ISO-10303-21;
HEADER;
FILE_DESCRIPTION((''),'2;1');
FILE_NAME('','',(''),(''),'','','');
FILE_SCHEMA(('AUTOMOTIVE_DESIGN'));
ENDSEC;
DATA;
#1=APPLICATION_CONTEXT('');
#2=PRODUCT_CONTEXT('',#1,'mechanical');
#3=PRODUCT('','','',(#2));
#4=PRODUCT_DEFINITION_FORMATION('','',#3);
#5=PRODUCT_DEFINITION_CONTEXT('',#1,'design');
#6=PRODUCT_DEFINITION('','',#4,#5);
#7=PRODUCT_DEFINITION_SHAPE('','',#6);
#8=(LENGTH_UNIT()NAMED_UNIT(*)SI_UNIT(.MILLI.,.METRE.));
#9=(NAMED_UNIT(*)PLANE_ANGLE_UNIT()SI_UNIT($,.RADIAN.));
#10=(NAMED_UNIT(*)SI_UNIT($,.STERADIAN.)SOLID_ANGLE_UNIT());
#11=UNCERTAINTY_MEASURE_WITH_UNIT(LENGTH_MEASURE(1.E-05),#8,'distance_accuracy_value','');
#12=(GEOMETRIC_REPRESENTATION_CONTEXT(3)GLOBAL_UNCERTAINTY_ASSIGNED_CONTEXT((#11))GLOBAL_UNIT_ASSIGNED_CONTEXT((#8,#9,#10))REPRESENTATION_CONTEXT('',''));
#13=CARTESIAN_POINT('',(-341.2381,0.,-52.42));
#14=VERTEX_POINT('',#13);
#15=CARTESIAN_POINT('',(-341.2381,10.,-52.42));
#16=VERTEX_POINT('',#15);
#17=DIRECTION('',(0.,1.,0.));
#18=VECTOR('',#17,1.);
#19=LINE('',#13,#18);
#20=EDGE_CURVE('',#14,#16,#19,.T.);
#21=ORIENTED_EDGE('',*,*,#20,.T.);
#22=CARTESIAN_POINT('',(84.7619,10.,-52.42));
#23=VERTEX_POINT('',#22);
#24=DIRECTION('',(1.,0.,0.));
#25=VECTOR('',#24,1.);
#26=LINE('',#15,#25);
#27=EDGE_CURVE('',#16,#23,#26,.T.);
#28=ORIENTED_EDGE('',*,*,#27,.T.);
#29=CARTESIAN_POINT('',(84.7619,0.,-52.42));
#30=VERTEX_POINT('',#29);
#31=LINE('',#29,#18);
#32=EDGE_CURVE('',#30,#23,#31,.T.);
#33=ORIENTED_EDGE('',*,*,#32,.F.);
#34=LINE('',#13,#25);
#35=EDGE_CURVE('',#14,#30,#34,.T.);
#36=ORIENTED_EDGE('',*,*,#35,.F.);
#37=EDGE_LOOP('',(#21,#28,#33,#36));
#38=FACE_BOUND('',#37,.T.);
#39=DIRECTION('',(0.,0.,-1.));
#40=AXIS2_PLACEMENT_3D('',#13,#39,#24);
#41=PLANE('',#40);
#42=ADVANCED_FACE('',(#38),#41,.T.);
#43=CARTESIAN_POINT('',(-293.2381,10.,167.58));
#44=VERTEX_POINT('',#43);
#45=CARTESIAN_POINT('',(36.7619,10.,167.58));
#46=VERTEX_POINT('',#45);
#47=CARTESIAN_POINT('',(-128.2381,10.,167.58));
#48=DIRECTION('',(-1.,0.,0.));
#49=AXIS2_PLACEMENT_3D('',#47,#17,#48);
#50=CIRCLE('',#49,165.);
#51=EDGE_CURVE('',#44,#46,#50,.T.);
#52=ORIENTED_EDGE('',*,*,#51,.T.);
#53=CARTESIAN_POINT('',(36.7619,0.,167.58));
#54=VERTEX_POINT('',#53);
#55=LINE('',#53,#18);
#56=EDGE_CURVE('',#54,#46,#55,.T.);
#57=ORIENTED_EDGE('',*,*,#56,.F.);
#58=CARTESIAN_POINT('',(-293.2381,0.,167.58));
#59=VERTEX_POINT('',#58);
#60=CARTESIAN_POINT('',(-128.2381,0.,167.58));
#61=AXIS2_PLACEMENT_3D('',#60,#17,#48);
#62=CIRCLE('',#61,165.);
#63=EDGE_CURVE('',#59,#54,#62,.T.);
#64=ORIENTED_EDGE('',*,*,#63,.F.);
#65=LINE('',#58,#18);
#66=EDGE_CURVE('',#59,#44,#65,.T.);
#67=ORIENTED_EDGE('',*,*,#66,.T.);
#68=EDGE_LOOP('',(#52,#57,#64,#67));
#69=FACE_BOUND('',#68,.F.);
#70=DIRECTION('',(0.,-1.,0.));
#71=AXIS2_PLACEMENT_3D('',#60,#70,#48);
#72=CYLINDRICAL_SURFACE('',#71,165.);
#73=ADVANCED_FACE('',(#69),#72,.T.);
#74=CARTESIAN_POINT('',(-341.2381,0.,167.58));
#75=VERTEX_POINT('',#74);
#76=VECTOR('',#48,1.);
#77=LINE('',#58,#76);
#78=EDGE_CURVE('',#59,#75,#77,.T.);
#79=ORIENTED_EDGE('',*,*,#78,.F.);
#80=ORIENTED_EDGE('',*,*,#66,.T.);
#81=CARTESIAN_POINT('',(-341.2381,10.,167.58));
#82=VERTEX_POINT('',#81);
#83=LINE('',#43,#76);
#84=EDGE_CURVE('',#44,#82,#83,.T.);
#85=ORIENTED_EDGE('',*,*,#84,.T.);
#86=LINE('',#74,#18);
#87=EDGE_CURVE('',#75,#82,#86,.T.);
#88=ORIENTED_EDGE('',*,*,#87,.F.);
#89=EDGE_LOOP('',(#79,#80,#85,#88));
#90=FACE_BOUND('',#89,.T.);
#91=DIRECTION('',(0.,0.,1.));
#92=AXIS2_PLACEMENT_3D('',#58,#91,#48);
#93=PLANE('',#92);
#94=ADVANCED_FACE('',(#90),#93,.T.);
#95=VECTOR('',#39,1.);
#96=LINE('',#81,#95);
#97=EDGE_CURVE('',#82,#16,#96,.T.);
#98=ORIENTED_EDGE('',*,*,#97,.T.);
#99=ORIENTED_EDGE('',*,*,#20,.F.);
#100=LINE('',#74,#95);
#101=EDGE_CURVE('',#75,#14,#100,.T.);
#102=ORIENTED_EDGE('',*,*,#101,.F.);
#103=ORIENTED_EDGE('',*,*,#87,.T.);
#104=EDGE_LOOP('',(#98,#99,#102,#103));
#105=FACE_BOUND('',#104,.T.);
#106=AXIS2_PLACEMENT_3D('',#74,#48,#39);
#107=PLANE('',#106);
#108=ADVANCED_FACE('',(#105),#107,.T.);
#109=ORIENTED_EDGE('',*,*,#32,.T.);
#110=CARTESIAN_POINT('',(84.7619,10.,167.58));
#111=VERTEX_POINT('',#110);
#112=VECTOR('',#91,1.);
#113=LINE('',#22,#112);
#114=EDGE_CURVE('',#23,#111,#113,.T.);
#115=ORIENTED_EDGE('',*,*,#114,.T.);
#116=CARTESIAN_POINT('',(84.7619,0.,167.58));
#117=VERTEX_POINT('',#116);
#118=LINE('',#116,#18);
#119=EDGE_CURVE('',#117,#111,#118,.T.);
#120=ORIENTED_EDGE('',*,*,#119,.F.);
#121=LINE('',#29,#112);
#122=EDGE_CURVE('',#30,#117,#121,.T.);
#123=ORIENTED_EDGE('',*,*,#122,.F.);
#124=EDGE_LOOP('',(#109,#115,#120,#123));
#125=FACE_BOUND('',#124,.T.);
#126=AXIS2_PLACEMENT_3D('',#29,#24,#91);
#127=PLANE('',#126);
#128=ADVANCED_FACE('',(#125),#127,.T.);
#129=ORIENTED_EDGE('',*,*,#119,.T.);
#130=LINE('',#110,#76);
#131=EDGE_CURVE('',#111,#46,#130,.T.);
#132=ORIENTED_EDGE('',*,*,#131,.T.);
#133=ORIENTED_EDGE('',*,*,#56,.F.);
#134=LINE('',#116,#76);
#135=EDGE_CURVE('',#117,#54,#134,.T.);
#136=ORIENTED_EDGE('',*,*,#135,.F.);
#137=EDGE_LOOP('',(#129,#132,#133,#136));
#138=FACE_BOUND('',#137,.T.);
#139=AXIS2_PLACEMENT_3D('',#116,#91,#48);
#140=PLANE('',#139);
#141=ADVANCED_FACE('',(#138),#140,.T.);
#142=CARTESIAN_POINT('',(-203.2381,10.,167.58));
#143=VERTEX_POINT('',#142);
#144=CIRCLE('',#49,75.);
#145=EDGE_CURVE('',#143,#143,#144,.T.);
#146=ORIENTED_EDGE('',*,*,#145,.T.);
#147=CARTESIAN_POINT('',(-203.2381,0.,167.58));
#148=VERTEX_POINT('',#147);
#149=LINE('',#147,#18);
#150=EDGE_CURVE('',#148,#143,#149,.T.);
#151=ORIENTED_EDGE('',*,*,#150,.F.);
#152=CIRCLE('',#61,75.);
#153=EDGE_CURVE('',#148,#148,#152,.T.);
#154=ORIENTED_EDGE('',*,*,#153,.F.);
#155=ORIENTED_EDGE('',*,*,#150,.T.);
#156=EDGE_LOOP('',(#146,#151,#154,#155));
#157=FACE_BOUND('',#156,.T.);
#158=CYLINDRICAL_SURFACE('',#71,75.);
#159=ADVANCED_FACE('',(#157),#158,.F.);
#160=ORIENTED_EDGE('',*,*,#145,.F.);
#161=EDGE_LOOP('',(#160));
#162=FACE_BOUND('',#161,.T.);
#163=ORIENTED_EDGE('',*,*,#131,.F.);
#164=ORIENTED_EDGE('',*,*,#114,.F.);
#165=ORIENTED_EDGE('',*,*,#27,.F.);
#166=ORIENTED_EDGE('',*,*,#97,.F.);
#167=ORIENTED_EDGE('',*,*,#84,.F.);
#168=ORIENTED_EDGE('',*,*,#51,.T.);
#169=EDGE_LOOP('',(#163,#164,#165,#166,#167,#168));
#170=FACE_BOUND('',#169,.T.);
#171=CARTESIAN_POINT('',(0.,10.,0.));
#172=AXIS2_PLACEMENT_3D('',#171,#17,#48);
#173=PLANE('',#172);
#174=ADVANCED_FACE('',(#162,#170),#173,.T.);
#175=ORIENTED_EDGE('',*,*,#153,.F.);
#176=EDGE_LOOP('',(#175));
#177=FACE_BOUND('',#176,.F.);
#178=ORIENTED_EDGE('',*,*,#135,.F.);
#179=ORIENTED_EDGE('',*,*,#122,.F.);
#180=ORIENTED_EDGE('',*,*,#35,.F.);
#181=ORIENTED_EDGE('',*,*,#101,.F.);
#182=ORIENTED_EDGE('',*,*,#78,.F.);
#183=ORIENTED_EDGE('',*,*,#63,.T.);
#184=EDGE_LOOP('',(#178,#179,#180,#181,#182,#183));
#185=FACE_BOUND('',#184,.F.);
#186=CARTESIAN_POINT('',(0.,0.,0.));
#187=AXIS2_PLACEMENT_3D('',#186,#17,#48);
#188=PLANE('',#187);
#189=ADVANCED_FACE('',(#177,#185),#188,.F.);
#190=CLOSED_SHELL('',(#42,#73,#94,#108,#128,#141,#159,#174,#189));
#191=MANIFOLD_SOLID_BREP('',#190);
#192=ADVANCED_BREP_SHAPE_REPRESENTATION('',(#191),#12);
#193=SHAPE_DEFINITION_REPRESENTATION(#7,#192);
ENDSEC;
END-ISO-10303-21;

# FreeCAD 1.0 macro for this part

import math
import FreeCAD as App
import Part
import Sketcher
from FreeCAD import Vector
Q = App.Units.Quantity

doc = App.newDocument("Part")
body = doc.addObject("PartDesign::Body", "Body")

# Sketch on XZ plane
sketch1 = body.newObject("Sketcher::SketchObject", "Sketch")
sketch1.AttachmentSupport = (doc.getObject("XZ_Plane"), [""])
sketch1.MapMode = "FlatFace"
sketch1.addGeometry([
    Part.LineSegment(Vector(-341, -52, 0), Vector(-341, 168, 0)),  # 0
    Part.LineSegment(Vector(-341, 168, 0), Vector(-293, 168, 0)),  # 1
    Part.ArcOfCircle(Part.Circle(Vector(-128, 168, 0), Vector(0, 0, 1), 165), math.radians(0), math.radians(180)),  # 2
    Part.LineSegment(Vector(37, 168, 0), Vector(85, 168, 0)),  # 3
    Part.LineSegment(Vector(85, 168, 0), Vector(85, -52, 0)),  # 4
    Part.LineSegment(Vector(85, -52, 0), Vector(-341, -52, 0)),  # 5
    Part.Circle(Vector(-128, 168, 0), Vector(0, 0, 1), 75),  # 6
], False)
sketch1.addConstraint([
    Sketcher.Constraint("Coincident", 0, 2, 1, 1),
    Sketcher.Constraint("Coincident", 1, 2, 2, 2),
    Sketcher.Constraint("Coincident", 2, 1, 3, 1),
    Sketcher.Constraint("Coincident", 3, 2, 4, 1),
    Sketcher.Constraint("Coincident", 4, 2, 5, 1),
    Sketcher.Constraint("Coincident", 5, 2, 0, 1),
    Sketcher.Constraint("Vertical", 0),
    Sketcher.Constraint("Horizontal", 1),
    Sketcher.Constraint("Horizontal", 3),
    Sketcher.Constraint("Vertical", 4),
    Sketcher.Constraint("Horizontal", 5),
    Sketcher.Constraint("Coincident", 6, 3, 2, 3),
    Sketcher.Constraint("Horizontal", 6, 3, 0, 2),
    Sketcher.Constraint("Horizontal", 1, 2, 2, 1),
    Sketcher.Constraint("Equal", 1, 3),
    Sketcher.Constraint("Diameter", 6, Q("150 mm")),
    Sketcher.Constraint("Radius", 2, Q("165 mm")),
    Sketcher.Constraint("DistanceX", 5, 2, 5, 1, Q("426 mm")),
    Sketcher.Constraint("DistanceY", 0, 1, 0, 2, Q("220 mm")),
    Sketcher.Constraint("DistanceY", -1, 1, 2, 3, Q("167.58 mm")),
    Sketcher.Constraint("DistanceX", 2, 3, -1, 1, Q("128.238 mm")),
])
pad1 = body.newObject("PartDesign::Pad", "Pad")
pad1.Profile = sketch1
pad1.Length = 10
pad1.Reversed = True

doc.recompute()
